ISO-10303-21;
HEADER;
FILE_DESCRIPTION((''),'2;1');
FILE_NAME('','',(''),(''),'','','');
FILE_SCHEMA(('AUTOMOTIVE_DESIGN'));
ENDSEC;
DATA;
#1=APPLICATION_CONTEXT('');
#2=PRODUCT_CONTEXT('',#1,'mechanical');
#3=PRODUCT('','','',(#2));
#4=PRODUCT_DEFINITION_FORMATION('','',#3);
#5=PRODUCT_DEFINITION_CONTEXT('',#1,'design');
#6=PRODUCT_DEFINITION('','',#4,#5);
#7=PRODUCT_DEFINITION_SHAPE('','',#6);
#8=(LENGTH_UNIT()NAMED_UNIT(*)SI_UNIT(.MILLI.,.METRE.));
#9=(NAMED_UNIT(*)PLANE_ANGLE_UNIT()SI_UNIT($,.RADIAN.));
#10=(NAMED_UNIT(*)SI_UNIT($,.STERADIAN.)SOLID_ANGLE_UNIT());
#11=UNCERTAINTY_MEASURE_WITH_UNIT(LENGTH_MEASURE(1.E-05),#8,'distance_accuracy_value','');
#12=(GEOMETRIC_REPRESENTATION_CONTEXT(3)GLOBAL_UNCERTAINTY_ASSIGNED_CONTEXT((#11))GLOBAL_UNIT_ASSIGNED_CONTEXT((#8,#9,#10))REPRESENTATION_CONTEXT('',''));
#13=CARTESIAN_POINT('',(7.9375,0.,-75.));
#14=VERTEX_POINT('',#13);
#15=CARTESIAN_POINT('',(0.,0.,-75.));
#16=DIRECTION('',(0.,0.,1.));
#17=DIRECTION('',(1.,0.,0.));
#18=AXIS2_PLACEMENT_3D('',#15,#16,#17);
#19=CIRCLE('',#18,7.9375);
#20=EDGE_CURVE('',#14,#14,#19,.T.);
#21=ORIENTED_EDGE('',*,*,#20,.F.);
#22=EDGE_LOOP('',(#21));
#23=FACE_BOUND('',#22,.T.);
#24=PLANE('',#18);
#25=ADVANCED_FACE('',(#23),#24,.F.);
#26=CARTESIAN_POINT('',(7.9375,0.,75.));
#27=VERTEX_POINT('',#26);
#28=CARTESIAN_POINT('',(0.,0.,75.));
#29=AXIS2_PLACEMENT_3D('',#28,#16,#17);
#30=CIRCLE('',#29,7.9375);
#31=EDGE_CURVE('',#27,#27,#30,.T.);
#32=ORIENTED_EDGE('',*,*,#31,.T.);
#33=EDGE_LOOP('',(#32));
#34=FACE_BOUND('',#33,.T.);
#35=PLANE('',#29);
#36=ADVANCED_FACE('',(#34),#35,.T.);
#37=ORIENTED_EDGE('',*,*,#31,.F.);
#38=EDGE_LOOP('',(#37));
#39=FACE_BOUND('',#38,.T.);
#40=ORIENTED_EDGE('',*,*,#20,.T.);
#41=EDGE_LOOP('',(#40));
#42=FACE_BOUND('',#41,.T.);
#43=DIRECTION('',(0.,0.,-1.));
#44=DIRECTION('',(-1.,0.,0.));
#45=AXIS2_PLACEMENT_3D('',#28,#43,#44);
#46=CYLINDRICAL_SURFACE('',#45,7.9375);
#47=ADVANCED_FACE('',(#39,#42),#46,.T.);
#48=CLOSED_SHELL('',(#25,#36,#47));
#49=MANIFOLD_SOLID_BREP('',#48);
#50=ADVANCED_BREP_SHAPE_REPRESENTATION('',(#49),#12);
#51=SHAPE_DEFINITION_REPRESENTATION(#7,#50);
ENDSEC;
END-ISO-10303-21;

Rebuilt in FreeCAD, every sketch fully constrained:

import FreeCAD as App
import Part
import Sketcher
Q = App.Units.Quantity

doc = App.newDocument("Part")
params = doc.addObject("Spreadsheet::Sheet", "Params")
for row, (alias, value) in enumerate([
    ("pad1_length", "150 mm"),
], start=1):
    params.set(f"A{row}", alias)
    params.set(f"B{row}", "=" + value)
    params.setAlias(f"B{row}", alias)

body = doc.addObject("PartDesign::Body", "Body")

sketch1 = body.newObject("Sketcher::SketchObject", "Sketch")
sketch1.AttachmentSupport = (doc.getObject("XY_Plane"), [""])
sketch1.MapMode = "FlatFace"
sketch1.addGeometry(Part.Circle(App.Vector(0, 0, 0), App.Vector(0, 0, 1), 7.9375), False)
sketch1.addConstraint([
    Sketcher.Constraint("Coincident", 0, 3, -1, 1),
    Sketcher.Constraint("Diameter", 0, Q("15.875 mm")),
])
pad1 = body.newObject("PartDesign::Pad", "Pad")
pad1.Profile = sketch1
pad1.setExpression("Length", "Params.pad1_length")
pad1.Midplane = True

doc.recompute()
